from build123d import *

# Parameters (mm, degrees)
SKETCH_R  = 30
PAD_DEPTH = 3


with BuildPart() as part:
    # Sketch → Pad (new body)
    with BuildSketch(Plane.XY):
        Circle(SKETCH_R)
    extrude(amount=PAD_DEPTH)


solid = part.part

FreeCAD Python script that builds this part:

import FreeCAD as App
import Part
import Sketcher

V = App.Vector

doc = App.newDocument("Part")
body = doc.addObject("PartDesign::Body", "Body")

# Sketch on XY plane
sketch1 = body.newObject("Sketcher::SketchObject", "Sketch")
sketch1.AttachmentSupport = (doc.getObject("XY_Plane"), [""])
sketch1.MapMode = "FlatFace"
sketch1.addGeometry(Part.Circle(V(0, 0, 0), V(0, 0, 1), 30), False)
sketch1.addConstraint([
    Sketcher.Constraint("Coincident", 0, 3, -1, 1),
    Sketcher.Constraint("Diameter", 0, 60.0),
])
pad1 = body.newObject("PartDesign::Pad", "Pad")
pad1.Profile = sketch1
pad1.Length = 3

doc.recompute()
